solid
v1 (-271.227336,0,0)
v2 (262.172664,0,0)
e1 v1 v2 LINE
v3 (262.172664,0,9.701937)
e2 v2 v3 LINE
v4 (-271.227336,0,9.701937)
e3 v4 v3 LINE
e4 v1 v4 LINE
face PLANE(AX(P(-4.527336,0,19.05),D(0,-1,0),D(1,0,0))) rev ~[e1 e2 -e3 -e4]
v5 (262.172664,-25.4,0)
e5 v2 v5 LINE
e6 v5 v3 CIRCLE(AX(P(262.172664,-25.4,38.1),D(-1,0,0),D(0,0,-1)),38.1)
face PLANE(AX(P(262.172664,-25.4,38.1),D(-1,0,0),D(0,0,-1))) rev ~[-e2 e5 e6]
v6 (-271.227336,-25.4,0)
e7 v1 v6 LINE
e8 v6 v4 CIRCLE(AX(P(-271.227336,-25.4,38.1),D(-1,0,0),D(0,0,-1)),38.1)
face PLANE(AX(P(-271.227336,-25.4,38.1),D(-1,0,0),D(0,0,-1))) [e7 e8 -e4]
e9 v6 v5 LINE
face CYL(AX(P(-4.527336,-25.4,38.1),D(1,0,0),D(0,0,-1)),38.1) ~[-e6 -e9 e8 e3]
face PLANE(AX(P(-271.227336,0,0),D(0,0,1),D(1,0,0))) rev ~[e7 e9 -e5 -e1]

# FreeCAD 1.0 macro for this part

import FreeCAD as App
import Part
import Sketcher

V = App.Vector
Q = App.Units.Quantity

doc = App.newDocument("Part")
body = doc.addObject("PartDesign::Body", "Body")

sketch1 = body.newObject("Sketcher::SketchObject", "Sketch")
sketch1.AttachmentSupport = (doc.getObject("XZ_Plane"), [""])
sketch1.MapMode = "FlatFace"
sketch1.addGeometry([
    Part.LineSegment(V(-271, 38, 0), V(-271, 0, 0)),
    Part.LineSegment(V(-271, 0, 0), V(262, 0, 0)),
    Part.LineSegment(V(262, 0, 0), V(262, 38, 0)),
    Part.LineSegment(V(262, 38, 0), V(-271, 38, 0)),
], False)
sketch1.addConstraint([
    Sketcher.Constraint("Coincident", 0, 2, 1, 1),
    Sketcher.Constraint("Coincident", 1, 2, 2, 1),
    Sketcher.Constraint("Coincident", 2, 2, 3, 1),
    Sketcher.Constraint("Coincident", 3, 2, 0, 1),
    Sketcher.Constraint("Vertical", 0),
    Sketcher.Constraint("Horizontal", 1),
    Sketcher.Constraint("Vertical", 2),
    Sketcher.Constraint("Horizontal", 3),
    Sketcher.Constraint("PointOnObject", 0, 2, -1),
    Sketcher.Constraint("DistanceX", 1, 1, 1, 2, Q("21 in")),
    Sketcher.Constraint("DistanceY", 0, 2, 0, 1, Q("1.5 in")),
    Sketcher.Constraint("DistanceX", 0, 2, -1, 1, Q("271.227336 mm")),
])
pad1 = body.newObject("PartDesign::Pad", "Pad")
pad1.Profile = sketch1
pad1.Length = Q("1 in")

sketch2 = body.newObject("Sketcher::SketchObject", "Sketch001")
sketch2.AttachmentSupport = (doc.getObject("XZ_Plane"), [""])
sketch2.MapMode = "FlatFace"
sketch2.AttachmentOffset = App.Placement(V(0, 0, 1 * 25.4), App.Rotation())
sketch2.addGeometry([
    Part.LineSegment(V(-271, 38, 0), V(-271, 0, 0)),
    Part.LineSegment(V(-271, 0, 0), V(262, 0, 0)),
    Part.LineSegment(V(262, 0, 0), V(262, 38, 0)),
    Part.LineSegment(V(262, 38, 0), V(-271, 38, 0)),
], False)
sketch2.addGeometry(Part.LineSegment(V(262, 38, 0), V(-271, 38, 0)), True)
sketch2.addConstraint([
    Sketcher.Constraint("Coincident", 0, 2, 1, 1),
    Sketcher.Constraint("Coincident", 1, 2, 2, 1),
    Sketcher.Constraint("Coincident", 2, 2, 3, 1),
    Sketcher.Constraint("Coincident", 3, 2, 0, 1),
    Sketcher.Constraint("Vertical", 0),
    Sketcher.Constraint("Horizontal", 1),
    Sketcher.Constraint("Vertical", 2),
    Sketcher.Constraint("Horizontal", 3),
    Sketcher.Constraint("Horizontal", 4),
    Sketcher.Constraint("Coincident", 4, 1, 2, 2),
    Sketcher.Constraint("PointOnObject", 0, 2, -1),
    Sketcher.Constraint("Vertical", 0, 2, 4, 2),
    Sketcher.Constraint("DistanceX", 1, 1, 1, 2, Q("21 in")),
    Sketcher.Constraint("DistanceY", 0, 2, 0, 1, Q("1.5 in")),
    Sketcher.Constraint("DistanceX", 0, 2, -1, 1, Q("271.227336 mm")),
])
revolution = body.newObject("PartDesign::Revolution", "Revolution")
revolution.Profile = sketch2
revolution.ReferenceAxis = (sketch2, ["Axis0"])
revolution.Angle = 360

doc.recompute()
